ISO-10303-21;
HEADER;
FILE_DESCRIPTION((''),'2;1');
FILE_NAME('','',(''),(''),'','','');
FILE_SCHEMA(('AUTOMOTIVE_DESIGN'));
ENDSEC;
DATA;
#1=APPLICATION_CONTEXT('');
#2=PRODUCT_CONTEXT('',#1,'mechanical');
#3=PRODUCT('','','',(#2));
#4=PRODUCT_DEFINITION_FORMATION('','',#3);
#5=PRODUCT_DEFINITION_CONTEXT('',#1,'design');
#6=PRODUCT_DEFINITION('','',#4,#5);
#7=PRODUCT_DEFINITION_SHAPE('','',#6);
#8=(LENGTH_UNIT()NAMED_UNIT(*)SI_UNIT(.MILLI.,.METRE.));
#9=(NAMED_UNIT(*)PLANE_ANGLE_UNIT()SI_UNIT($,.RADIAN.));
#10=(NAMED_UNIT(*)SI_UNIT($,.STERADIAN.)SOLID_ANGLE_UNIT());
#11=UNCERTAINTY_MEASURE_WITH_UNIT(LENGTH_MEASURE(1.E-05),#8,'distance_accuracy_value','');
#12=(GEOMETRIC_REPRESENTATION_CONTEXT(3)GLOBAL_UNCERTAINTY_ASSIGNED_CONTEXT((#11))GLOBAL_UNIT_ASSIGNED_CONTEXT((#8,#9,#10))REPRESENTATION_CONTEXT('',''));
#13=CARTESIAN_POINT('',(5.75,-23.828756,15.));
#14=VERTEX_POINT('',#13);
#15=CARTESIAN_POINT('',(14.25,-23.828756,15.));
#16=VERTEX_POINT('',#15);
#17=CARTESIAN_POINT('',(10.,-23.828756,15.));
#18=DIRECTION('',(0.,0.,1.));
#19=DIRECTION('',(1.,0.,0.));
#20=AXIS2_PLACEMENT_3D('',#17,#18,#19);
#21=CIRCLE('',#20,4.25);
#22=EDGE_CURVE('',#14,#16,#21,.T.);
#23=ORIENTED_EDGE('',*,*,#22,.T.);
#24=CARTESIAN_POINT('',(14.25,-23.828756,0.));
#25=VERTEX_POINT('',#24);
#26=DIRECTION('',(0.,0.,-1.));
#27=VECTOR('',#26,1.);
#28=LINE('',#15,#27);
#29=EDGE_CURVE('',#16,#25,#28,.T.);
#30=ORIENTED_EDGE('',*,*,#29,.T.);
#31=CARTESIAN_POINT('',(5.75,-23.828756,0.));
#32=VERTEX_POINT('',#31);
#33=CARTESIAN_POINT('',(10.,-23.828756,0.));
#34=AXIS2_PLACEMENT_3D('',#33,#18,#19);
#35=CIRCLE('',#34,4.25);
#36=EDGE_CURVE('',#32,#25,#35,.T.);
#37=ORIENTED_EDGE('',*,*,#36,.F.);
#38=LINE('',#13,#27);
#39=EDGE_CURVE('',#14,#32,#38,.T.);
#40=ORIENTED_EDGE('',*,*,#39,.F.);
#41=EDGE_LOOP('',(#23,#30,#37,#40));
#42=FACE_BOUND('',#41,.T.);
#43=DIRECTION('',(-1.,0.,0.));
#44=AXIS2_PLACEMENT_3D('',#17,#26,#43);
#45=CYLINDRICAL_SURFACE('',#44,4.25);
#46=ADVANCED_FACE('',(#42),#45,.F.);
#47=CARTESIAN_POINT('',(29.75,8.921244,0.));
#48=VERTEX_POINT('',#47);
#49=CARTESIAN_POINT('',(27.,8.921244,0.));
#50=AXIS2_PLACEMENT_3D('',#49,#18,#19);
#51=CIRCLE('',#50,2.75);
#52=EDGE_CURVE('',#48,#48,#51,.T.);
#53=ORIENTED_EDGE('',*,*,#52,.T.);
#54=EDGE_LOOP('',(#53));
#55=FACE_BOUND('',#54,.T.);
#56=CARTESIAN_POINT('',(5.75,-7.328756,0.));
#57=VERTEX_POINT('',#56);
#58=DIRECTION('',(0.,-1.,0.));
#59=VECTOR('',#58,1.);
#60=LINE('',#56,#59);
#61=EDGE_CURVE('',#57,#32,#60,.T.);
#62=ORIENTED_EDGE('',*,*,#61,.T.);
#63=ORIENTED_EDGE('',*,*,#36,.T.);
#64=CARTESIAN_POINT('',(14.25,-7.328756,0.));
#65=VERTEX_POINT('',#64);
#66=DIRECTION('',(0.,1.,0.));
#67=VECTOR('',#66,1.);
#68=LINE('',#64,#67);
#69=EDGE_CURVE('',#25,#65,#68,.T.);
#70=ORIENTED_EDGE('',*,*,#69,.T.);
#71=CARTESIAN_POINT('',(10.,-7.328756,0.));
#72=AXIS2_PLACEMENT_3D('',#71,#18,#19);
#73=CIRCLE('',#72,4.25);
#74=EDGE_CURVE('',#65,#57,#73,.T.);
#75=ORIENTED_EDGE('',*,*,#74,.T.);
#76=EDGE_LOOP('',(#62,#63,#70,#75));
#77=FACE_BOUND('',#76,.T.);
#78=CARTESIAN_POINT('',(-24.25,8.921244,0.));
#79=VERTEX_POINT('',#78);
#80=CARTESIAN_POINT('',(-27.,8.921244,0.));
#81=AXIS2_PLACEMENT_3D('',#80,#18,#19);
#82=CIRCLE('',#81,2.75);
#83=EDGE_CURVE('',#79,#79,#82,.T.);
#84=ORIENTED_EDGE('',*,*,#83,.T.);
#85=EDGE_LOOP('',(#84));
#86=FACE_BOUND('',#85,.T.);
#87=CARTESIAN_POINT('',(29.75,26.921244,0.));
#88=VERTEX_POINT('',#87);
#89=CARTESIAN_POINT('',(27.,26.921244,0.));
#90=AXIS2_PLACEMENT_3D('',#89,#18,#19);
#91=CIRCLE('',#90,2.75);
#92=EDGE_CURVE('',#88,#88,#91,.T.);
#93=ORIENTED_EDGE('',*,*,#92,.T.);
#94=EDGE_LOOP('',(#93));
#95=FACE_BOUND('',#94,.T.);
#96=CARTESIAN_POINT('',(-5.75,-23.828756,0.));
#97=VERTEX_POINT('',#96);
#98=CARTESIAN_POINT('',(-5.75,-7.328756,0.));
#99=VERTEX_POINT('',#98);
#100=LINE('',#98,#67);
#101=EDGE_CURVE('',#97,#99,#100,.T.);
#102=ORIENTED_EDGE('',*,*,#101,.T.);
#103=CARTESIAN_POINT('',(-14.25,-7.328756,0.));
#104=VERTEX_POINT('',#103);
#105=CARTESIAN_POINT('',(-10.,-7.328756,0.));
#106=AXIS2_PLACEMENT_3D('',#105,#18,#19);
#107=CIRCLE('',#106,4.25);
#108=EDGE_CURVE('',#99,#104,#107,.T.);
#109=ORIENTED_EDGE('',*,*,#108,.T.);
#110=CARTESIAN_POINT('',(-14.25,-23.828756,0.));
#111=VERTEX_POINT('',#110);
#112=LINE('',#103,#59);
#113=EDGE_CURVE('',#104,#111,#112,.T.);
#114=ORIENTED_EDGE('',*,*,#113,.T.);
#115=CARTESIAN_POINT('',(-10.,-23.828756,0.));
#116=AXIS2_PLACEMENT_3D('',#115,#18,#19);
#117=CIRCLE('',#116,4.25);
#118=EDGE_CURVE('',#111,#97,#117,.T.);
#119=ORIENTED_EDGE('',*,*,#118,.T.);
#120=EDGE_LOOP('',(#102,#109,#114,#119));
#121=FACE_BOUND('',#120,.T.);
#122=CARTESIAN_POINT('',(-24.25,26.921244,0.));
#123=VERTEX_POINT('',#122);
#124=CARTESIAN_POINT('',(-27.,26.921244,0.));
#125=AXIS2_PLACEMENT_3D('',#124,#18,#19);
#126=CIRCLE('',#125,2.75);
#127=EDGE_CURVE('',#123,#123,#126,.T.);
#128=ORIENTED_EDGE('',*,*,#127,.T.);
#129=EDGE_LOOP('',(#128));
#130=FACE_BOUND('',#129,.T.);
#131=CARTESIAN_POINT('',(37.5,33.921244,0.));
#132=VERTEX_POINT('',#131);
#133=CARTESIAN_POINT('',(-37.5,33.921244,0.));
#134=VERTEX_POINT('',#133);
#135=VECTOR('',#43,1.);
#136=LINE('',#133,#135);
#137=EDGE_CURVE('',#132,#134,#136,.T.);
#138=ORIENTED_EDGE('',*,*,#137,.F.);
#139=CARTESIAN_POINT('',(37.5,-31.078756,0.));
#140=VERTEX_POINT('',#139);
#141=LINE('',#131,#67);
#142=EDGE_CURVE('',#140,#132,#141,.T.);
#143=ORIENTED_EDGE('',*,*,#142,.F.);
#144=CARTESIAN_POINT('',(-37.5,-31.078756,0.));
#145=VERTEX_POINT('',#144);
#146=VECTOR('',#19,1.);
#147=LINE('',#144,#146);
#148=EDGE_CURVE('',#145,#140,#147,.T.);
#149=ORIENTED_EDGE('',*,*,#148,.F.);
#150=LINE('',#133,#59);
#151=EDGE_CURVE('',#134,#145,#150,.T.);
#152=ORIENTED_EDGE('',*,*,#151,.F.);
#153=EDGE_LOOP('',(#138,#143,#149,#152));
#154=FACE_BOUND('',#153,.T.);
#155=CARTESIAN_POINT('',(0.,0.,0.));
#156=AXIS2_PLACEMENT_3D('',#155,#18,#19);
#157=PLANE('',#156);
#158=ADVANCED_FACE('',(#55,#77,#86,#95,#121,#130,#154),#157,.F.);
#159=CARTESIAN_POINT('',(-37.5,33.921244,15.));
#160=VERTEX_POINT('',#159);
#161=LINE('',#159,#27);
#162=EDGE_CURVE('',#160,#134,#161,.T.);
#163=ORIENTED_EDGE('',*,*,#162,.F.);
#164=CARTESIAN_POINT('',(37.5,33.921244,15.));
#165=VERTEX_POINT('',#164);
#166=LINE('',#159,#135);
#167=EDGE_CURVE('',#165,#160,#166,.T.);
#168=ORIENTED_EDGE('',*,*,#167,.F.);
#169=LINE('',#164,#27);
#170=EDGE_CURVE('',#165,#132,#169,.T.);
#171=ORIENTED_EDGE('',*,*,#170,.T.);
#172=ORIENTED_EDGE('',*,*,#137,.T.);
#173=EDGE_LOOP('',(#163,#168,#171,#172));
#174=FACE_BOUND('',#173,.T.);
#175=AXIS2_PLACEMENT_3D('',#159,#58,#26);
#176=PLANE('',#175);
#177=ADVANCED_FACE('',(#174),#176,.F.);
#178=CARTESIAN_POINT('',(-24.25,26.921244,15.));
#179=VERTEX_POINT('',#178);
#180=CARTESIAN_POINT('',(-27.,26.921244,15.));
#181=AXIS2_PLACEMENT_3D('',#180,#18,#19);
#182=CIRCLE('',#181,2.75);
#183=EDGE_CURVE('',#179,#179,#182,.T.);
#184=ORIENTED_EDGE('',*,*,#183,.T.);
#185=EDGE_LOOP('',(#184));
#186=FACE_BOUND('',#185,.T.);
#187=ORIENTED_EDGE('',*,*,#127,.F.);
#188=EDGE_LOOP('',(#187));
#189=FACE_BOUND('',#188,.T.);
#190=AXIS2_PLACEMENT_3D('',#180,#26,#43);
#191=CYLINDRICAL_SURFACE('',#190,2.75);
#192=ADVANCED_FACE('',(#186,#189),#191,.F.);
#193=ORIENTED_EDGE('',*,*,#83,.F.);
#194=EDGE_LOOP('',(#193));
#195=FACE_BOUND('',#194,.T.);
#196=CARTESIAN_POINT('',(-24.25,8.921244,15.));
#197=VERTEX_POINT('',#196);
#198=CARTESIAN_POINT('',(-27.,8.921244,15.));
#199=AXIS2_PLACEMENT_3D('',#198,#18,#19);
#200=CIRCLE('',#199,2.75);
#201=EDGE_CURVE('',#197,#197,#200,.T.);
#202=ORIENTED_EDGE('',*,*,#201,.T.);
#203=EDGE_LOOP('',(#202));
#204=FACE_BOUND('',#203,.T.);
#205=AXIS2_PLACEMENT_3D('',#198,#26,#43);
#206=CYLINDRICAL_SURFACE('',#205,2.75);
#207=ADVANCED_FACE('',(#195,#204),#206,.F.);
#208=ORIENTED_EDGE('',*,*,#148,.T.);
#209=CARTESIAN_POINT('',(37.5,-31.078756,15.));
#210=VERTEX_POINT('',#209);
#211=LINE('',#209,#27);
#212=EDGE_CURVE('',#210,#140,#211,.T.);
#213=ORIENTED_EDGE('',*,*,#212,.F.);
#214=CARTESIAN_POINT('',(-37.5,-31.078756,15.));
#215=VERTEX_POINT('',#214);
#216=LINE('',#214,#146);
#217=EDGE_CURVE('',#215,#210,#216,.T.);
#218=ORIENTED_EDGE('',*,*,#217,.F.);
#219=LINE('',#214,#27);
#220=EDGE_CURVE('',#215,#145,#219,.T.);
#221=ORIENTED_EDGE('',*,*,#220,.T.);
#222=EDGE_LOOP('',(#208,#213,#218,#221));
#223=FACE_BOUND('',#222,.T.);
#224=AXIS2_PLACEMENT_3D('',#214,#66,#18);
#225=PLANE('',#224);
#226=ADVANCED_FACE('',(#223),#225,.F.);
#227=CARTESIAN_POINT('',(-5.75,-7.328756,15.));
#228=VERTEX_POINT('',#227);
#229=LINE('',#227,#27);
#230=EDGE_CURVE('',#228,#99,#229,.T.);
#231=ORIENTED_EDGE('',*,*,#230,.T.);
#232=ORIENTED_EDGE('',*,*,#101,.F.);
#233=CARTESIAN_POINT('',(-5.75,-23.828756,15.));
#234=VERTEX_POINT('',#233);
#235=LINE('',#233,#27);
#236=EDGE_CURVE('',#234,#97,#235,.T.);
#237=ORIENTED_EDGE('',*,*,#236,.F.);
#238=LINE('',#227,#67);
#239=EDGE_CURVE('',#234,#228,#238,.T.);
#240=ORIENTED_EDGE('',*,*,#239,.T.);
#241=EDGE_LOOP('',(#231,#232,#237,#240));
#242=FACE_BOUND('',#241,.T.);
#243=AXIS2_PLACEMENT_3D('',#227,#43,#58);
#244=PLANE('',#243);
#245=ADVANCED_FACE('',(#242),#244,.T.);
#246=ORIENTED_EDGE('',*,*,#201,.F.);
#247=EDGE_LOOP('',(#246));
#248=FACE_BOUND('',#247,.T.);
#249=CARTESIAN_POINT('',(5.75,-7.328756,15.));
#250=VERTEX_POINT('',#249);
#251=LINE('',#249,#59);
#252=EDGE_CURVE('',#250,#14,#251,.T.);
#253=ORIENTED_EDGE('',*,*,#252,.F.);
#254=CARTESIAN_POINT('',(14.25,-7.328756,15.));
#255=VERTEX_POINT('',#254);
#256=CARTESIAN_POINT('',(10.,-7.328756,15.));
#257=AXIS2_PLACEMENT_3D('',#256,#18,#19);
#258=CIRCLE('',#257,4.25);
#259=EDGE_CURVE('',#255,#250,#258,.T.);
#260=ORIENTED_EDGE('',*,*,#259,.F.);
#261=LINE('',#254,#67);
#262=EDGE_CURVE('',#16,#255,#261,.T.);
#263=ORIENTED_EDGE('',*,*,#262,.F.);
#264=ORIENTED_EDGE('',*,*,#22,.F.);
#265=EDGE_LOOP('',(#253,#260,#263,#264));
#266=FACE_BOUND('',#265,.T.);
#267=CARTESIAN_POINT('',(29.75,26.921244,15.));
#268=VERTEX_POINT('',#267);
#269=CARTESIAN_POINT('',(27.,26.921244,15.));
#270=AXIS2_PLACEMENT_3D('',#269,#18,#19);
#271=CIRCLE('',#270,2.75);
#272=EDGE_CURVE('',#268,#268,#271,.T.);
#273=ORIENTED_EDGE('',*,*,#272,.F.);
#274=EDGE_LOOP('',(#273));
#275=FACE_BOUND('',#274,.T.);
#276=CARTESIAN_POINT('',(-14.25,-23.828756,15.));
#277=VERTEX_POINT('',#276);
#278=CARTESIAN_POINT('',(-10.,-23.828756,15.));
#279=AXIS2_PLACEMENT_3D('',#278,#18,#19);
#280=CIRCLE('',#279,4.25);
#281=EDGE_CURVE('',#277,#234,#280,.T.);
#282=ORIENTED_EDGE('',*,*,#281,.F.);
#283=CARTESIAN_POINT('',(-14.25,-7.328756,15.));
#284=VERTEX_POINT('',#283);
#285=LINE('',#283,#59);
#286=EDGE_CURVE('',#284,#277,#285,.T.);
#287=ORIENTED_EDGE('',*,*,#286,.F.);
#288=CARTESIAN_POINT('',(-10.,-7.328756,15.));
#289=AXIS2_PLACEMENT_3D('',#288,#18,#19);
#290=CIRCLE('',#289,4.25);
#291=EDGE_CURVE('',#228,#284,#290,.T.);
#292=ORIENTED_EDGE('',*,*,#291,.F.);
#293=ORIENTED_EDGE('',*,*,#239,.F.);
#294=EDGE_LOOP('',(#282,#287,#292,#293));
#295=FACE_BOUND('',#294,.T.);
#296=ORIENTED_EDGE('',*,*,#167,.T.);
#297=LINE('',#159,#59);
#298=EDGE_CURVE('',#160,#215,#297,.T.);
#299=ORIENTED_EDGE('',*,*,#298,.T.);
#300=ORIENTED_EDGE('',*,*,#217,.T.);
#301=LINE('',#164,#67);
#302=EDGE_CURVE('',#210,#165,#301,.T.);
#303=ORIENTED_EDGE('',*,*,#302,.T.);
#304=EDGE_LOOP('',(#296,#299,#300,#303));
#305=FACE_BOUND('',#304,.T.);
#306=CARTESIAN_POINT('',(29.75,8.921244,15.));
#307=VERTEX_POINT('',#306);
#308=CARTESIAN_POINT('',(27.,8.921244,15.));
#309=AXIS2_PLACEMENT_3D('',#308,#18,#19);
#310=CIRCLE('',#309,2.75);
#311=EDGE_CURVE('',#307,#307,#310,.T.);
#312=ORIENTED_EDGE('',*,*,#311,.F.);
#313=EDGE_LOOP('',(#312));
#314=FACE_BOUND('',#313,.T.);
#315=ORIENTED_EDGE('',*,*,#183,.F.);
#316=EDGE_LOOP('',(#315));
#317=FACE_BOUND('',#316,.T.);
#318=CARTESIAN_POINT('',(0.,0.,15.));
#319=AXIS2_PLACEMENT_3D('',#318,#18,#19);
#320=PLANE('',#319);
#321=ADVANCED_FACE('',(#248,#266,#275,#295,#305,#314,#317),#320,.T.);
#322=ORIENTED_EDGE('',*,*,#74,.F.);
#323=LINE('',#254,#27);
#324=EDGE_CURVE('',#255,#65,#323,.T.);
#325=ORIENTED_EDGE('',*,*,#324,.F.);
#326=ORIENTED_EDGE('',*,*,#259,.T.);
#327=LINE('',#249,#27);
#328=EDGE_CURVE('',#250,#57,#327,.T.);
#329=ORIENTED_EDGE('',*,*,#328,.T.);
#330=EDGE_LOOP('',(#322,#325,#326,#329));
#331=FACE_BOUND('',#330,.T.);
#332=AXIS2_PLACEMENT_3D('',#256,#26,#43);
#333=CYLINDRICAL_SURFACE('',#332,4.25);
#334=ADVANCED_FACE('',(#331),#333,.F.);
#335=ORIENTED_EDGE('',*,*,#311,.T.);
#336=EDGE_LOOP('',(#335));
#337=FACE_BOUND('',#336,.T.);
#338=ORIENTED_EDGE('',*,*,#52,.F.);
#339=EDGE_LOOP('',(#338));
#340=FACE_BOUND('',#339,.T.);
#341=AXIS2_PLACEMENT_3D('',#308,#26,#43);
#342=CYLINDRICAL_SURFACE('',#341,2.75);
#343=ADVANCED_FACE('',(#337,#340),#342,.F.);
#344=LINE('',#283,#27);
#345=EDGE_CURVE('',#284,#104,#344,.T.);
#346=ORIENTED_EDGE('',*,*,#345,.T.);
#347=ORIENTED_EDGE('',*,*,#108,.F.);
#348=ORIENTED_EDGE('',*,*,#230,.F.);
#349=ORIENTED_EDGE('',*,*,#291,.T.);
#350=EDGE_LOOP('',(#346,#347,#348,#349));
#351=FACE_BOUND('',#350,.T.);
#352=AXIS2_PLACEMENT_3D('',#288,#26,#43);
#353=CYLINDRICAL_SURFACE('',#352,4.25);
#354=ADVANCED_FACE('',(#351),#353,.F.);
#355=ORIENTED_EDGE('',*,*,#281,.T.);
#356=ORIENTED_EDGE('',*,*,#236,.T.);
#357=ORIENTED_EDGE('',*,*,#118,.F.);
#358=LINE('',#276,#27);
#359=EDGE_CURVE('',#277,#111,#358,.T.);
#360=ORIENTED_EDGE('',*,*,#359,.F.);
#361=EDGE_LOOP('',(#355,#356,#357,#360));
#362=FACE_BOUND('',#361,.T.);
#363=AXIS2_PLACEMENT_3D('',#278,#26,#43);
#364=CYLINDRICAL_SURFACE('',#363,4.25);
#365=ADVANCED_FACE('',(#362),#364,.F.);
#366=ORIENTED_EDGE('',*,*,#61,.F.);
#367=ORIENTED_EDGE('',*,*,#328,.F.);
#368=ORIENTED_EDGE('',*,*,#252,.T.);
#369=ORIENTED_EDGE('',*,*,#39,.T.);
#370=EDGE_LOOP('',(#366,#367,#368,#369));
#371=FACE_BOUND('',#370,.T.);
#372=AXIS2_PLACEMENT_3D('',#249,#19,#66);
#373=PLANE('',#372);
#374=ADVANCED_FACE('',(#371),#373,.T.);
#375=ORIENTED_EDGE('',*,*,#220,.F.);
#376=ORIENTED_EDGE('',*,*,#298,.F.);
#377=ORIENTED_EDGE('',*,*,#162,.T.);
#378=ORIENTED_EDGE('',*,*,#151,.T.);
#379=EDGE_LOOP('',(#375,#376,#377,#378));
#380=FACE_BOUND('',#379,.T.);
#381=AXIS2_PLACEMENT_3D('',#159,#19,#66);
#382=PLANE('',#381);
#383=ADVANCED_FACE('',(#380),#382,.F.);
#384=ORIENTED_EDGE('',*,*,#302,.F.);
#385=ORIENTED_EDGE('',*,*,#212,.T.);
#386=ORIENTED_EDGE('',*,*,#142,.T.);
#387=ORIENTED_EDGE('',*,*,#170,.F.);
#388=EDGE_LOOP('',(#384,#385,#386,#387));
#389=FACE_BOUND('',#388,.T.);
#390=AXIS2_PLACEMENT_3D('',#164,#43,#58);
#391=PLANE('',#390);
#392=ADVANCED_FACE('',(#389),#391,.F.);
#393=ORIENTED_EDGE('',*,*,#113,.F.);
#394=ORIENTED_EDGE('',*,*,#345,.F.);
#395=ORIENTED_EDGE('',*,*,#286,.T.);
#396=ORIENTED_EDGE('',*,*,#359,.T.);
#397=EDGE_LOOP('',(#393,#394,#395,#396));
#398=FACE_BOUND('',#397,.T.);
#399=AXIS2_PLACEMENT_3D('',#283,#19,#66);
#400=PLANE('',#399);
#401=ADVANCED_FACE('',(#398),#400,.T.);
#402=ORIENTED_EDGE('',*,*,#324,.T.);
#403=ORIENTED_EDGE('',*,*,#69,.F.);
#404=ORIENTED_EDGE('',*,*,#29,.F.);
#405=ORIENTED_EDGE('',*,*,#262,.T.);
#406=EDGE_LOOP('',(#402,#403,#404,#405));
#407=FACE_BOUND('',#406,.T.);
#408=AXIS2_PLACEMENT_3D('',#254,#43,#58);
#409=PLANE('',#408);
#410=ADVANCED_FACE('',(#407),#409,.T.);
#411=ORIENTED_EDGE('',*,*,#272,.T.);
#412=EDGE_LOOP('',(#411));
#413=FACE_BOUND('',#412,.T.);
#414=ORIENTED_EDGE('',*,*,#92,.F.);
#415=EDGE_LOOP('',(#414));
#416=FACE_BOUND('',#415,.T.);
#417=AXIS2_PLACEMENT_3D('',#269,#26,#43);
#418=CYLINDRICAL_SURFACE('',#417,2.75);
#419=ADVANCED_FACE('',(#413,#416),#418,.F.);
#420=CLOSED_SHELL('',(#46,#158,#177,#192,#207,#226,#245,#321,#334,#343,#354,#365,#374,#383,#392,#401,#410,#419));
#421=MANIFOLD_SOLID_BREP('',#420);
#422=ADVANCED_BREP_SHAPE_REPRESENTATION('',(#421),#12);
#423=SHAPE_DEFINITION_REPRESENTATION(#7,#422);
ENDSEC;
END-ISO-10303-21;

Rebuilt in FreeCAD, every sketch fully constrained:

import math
import FreeCAD as App
import Part
import Sketcher

V = App.Vector
Q = App.Units.Quantity


def add_polygon(sketch, points):
    """Adds a closed chain of lines whose ends are joined by coincident constraints."""
    first, n = sketch.GeometryCount, len(points)
    for a, b in zip(points, points[1:] + points[:1]):
        sketch.addGeometry(Part.LineSegment(App.Vector(*a, 0), App.Vector(*b, 0)), False)
    for i in range(n):
        sketch.addConstraint(Sketcher.Constraint("Coincident", first + i, 2, first + (i + 1) % n, 1))

doc = App.newDocument("Part")
params = doc.addObject("Spreadsheet::Sheet", "Params")
for row, (alias, value) in enumerate([
    ("sketch1_diameter", "5.5 mm"),
    ("sketch1_width", "75 mm"),
    ("sketch1_height", "65 mm"),
    ("sketch1_radius", "4.25 mm"),
    ("sketch1_height2", "16.5 mm"),
    ("pad1_length", "15 mm"),
], start=1):
    params.set(f"A{row}", alias)
    params.set(f"B{row}", "=" + value)
    params.setAlias(f"B{row}", alias)

body = doc.addObject("PartDesign::Body", "Body")

sketch1 = body.newObject("Sketcher::SketchObject", "Sketch")
sketch1.AttachmentSupport = (doc.getObject("XY_Plane"), [""])
sketch1.MapMode = "FlatFace"
add_polygon(sketch1, [(-37.5, 33.921244), (-37.5, -31.078756), (37.5, -31.078756), (37.5, 33.921244)])
sketch1.addGeometry(Part.ArcOfCircle(Part.Circle(V(-10, -7.328756, 0), V(0, 0, 1), 4.25), math.radians(0), math.radians(180)), False)
sketch1.addGeometry(Part.LineSegment(V(-5.75, -7.328756, 0), V(-5.75, -23.828756, 0)), False)
sketch1.addGeometry(Part.ArcOfCircle(Part.Circle(V(-10, -23.828756, 0), V(0, 0, 1), 4.25), math.radians(180), math.radians(360)), False)
sketch1.addGeometry(Part.LineSegment(V(-14.25, -23.828756, 0), V(-14.25, -7.328756, 0)), False)
sketch1.addGeometry(Part.ArcOfCircle(Part.Circle(V(10, -7.328756, 0), V(0, 0, 1), 4.25), math.radians(0), math.radians(180)), False)
sketch1.addGeometry(Part.LineSegment(V(14.25, -7.328756, 0), V(14.25, -23.828756, 0)), False)
sketch1.addGeometry(Part.ArcOfCircle(Part.Circle(V(10, -23.828756, 0), V(0, 0, 1), 4.25), math.radians(180), math.radians(360)), False)
sketch1.addGeometry(Part.LineSegment(V(5.75, -23.828756, 0), V(5.75, -7.328756, 0)), False)
sketch1.addGeometry(Part.Circle(V(-27, 8.921244, 0), V(0, 0, 1), 2.75), False)
sketch1.addGeometry(Part.Circle(V(-27, 26.921244, 0), V(0, 0, 1), 2.75), False)
sketch1.addGeometry(Part.Circle(V(27, 8.921244, 0), V(0, 0, 1), 2.75), False)
sketch1.addGeometry(Part.Circle(V(27, 26.921244, 0), V(0, 0, 1), 2.75), False)
sketch1.addConstraint([
    Sketcher.Constraint("Tangent", 4, 1, 5, 1),
    Sketcher.Constraint("Tangent", 5, 2, 6, 2),
    Sketcher.Constraint("Tangent", 6, 1, 7, 1),
    Sketcher.Constraint("Tangent", 7, 2, 4, 2),
    Sketcher.Constraint("Tangent", 8, 1, 9, 1),
    Sketcher.Constraint("Tangent", 9, 2, 10, 2),
    Sketcher.Constraint("Tangent", 10, 1, 11, 1),
    Sketcher.Constraint("Tangent", 11, 2, 8, 2),
    Sketcher.Constraint("Vertical", 0),
    Sketcher.Constraint("Horizontal", 1),
    Sketcher.Constraint("Vertical", 2),
    Sketcher.Constraint("Horizontal", 3),
    Sketcher.Constraint("Vertical", 5),
    Sketcher.Constraint("Vertical", 7),
    Sketcher.Constraint("Vertical", 9),
    Sketcher.Constraint("Vertical", 11),
    Sketcher.Constraint("Equal", 6, 8),
    Sketcher.Constraint("Equal", 12, 13),
    Sketcher.Constraint("Equal", 13, 14),
    Sketcher.Constraint("Equal", 14, 15),
    Sketcher.Constraint("Symmetric", 4, 3, 8, 3, -2),
    Sketcher.Constraint("Symmetric", 12, 3, 14, 3, -2),
    Sketcher.Constraint("Symmetric", 13, 3, 15, 3, -2),
    Sketcher.Constraint("Horizontal", 6, 3, 10, 3),
    Sketcher.Constraint("Vertical", 12, 3, 13, 3),
    Sketcher.Constraint("Diameter", 12, Q("5.5 mm")),
    Sketcher.Constraint("DistanceX", 1, 1, 1, 2, Q("75 mm")),
    Sketcher.Constraint("DistanceY", 0, 2, 0, 1, Q("65 mm")),
    Sketcher.Constraint("Radius", 4, Q("4.25 mm")),
    Sketcher.Constraint("DistanceY", 5, 2, 5, 1, Q("16.5 mm")),
    Sketcher.Constraint("DistanceX", 4, 3, -1, 1, Q("10 mm")),
    Sketcher.Constraint("DistanceX", 12, 3, -1, 1, Q("27 mm")),
    Sketcher.Constraint("DistanceY", 12, 3, 13, 3, Q("18 mm")),
    Sketcher.Constraint("DistanceY", 0, 2, 12, 3, Q("40 mm")),
    Sketcher.Constraint("DistanceX", 0, 2, -1, 1, Q("37.5 mm")),
    Sketcher.Constraint("DistanceY", 4, 3, 12, 3, Q("16.25 mm")),
    Sketcher.Constraint("DistanceY", 4, 3, -1, 1, Q("7.328756 mm")),
])
sketch1.setExpression("Constraints[29]", "Params.sketch1_diameter")
sketch1.setExpression("Constraints[30]", "Params.sketch1_width")
sketch1.setExpression("Constraints[31]", "Params.sketch1_height")
sketch1.setExpression("Constraints[32]", "Params.sketch1_radius")
sketch1.setExpression("Constraints[33]", "Params.sketch1_height2")
pad1 = body.newObject("PartDesign::Pad", "Pad")
pad1.Profile = sketch1
pad1.setExpression("Length", "Params.pad1_length")

doc.recompute()
